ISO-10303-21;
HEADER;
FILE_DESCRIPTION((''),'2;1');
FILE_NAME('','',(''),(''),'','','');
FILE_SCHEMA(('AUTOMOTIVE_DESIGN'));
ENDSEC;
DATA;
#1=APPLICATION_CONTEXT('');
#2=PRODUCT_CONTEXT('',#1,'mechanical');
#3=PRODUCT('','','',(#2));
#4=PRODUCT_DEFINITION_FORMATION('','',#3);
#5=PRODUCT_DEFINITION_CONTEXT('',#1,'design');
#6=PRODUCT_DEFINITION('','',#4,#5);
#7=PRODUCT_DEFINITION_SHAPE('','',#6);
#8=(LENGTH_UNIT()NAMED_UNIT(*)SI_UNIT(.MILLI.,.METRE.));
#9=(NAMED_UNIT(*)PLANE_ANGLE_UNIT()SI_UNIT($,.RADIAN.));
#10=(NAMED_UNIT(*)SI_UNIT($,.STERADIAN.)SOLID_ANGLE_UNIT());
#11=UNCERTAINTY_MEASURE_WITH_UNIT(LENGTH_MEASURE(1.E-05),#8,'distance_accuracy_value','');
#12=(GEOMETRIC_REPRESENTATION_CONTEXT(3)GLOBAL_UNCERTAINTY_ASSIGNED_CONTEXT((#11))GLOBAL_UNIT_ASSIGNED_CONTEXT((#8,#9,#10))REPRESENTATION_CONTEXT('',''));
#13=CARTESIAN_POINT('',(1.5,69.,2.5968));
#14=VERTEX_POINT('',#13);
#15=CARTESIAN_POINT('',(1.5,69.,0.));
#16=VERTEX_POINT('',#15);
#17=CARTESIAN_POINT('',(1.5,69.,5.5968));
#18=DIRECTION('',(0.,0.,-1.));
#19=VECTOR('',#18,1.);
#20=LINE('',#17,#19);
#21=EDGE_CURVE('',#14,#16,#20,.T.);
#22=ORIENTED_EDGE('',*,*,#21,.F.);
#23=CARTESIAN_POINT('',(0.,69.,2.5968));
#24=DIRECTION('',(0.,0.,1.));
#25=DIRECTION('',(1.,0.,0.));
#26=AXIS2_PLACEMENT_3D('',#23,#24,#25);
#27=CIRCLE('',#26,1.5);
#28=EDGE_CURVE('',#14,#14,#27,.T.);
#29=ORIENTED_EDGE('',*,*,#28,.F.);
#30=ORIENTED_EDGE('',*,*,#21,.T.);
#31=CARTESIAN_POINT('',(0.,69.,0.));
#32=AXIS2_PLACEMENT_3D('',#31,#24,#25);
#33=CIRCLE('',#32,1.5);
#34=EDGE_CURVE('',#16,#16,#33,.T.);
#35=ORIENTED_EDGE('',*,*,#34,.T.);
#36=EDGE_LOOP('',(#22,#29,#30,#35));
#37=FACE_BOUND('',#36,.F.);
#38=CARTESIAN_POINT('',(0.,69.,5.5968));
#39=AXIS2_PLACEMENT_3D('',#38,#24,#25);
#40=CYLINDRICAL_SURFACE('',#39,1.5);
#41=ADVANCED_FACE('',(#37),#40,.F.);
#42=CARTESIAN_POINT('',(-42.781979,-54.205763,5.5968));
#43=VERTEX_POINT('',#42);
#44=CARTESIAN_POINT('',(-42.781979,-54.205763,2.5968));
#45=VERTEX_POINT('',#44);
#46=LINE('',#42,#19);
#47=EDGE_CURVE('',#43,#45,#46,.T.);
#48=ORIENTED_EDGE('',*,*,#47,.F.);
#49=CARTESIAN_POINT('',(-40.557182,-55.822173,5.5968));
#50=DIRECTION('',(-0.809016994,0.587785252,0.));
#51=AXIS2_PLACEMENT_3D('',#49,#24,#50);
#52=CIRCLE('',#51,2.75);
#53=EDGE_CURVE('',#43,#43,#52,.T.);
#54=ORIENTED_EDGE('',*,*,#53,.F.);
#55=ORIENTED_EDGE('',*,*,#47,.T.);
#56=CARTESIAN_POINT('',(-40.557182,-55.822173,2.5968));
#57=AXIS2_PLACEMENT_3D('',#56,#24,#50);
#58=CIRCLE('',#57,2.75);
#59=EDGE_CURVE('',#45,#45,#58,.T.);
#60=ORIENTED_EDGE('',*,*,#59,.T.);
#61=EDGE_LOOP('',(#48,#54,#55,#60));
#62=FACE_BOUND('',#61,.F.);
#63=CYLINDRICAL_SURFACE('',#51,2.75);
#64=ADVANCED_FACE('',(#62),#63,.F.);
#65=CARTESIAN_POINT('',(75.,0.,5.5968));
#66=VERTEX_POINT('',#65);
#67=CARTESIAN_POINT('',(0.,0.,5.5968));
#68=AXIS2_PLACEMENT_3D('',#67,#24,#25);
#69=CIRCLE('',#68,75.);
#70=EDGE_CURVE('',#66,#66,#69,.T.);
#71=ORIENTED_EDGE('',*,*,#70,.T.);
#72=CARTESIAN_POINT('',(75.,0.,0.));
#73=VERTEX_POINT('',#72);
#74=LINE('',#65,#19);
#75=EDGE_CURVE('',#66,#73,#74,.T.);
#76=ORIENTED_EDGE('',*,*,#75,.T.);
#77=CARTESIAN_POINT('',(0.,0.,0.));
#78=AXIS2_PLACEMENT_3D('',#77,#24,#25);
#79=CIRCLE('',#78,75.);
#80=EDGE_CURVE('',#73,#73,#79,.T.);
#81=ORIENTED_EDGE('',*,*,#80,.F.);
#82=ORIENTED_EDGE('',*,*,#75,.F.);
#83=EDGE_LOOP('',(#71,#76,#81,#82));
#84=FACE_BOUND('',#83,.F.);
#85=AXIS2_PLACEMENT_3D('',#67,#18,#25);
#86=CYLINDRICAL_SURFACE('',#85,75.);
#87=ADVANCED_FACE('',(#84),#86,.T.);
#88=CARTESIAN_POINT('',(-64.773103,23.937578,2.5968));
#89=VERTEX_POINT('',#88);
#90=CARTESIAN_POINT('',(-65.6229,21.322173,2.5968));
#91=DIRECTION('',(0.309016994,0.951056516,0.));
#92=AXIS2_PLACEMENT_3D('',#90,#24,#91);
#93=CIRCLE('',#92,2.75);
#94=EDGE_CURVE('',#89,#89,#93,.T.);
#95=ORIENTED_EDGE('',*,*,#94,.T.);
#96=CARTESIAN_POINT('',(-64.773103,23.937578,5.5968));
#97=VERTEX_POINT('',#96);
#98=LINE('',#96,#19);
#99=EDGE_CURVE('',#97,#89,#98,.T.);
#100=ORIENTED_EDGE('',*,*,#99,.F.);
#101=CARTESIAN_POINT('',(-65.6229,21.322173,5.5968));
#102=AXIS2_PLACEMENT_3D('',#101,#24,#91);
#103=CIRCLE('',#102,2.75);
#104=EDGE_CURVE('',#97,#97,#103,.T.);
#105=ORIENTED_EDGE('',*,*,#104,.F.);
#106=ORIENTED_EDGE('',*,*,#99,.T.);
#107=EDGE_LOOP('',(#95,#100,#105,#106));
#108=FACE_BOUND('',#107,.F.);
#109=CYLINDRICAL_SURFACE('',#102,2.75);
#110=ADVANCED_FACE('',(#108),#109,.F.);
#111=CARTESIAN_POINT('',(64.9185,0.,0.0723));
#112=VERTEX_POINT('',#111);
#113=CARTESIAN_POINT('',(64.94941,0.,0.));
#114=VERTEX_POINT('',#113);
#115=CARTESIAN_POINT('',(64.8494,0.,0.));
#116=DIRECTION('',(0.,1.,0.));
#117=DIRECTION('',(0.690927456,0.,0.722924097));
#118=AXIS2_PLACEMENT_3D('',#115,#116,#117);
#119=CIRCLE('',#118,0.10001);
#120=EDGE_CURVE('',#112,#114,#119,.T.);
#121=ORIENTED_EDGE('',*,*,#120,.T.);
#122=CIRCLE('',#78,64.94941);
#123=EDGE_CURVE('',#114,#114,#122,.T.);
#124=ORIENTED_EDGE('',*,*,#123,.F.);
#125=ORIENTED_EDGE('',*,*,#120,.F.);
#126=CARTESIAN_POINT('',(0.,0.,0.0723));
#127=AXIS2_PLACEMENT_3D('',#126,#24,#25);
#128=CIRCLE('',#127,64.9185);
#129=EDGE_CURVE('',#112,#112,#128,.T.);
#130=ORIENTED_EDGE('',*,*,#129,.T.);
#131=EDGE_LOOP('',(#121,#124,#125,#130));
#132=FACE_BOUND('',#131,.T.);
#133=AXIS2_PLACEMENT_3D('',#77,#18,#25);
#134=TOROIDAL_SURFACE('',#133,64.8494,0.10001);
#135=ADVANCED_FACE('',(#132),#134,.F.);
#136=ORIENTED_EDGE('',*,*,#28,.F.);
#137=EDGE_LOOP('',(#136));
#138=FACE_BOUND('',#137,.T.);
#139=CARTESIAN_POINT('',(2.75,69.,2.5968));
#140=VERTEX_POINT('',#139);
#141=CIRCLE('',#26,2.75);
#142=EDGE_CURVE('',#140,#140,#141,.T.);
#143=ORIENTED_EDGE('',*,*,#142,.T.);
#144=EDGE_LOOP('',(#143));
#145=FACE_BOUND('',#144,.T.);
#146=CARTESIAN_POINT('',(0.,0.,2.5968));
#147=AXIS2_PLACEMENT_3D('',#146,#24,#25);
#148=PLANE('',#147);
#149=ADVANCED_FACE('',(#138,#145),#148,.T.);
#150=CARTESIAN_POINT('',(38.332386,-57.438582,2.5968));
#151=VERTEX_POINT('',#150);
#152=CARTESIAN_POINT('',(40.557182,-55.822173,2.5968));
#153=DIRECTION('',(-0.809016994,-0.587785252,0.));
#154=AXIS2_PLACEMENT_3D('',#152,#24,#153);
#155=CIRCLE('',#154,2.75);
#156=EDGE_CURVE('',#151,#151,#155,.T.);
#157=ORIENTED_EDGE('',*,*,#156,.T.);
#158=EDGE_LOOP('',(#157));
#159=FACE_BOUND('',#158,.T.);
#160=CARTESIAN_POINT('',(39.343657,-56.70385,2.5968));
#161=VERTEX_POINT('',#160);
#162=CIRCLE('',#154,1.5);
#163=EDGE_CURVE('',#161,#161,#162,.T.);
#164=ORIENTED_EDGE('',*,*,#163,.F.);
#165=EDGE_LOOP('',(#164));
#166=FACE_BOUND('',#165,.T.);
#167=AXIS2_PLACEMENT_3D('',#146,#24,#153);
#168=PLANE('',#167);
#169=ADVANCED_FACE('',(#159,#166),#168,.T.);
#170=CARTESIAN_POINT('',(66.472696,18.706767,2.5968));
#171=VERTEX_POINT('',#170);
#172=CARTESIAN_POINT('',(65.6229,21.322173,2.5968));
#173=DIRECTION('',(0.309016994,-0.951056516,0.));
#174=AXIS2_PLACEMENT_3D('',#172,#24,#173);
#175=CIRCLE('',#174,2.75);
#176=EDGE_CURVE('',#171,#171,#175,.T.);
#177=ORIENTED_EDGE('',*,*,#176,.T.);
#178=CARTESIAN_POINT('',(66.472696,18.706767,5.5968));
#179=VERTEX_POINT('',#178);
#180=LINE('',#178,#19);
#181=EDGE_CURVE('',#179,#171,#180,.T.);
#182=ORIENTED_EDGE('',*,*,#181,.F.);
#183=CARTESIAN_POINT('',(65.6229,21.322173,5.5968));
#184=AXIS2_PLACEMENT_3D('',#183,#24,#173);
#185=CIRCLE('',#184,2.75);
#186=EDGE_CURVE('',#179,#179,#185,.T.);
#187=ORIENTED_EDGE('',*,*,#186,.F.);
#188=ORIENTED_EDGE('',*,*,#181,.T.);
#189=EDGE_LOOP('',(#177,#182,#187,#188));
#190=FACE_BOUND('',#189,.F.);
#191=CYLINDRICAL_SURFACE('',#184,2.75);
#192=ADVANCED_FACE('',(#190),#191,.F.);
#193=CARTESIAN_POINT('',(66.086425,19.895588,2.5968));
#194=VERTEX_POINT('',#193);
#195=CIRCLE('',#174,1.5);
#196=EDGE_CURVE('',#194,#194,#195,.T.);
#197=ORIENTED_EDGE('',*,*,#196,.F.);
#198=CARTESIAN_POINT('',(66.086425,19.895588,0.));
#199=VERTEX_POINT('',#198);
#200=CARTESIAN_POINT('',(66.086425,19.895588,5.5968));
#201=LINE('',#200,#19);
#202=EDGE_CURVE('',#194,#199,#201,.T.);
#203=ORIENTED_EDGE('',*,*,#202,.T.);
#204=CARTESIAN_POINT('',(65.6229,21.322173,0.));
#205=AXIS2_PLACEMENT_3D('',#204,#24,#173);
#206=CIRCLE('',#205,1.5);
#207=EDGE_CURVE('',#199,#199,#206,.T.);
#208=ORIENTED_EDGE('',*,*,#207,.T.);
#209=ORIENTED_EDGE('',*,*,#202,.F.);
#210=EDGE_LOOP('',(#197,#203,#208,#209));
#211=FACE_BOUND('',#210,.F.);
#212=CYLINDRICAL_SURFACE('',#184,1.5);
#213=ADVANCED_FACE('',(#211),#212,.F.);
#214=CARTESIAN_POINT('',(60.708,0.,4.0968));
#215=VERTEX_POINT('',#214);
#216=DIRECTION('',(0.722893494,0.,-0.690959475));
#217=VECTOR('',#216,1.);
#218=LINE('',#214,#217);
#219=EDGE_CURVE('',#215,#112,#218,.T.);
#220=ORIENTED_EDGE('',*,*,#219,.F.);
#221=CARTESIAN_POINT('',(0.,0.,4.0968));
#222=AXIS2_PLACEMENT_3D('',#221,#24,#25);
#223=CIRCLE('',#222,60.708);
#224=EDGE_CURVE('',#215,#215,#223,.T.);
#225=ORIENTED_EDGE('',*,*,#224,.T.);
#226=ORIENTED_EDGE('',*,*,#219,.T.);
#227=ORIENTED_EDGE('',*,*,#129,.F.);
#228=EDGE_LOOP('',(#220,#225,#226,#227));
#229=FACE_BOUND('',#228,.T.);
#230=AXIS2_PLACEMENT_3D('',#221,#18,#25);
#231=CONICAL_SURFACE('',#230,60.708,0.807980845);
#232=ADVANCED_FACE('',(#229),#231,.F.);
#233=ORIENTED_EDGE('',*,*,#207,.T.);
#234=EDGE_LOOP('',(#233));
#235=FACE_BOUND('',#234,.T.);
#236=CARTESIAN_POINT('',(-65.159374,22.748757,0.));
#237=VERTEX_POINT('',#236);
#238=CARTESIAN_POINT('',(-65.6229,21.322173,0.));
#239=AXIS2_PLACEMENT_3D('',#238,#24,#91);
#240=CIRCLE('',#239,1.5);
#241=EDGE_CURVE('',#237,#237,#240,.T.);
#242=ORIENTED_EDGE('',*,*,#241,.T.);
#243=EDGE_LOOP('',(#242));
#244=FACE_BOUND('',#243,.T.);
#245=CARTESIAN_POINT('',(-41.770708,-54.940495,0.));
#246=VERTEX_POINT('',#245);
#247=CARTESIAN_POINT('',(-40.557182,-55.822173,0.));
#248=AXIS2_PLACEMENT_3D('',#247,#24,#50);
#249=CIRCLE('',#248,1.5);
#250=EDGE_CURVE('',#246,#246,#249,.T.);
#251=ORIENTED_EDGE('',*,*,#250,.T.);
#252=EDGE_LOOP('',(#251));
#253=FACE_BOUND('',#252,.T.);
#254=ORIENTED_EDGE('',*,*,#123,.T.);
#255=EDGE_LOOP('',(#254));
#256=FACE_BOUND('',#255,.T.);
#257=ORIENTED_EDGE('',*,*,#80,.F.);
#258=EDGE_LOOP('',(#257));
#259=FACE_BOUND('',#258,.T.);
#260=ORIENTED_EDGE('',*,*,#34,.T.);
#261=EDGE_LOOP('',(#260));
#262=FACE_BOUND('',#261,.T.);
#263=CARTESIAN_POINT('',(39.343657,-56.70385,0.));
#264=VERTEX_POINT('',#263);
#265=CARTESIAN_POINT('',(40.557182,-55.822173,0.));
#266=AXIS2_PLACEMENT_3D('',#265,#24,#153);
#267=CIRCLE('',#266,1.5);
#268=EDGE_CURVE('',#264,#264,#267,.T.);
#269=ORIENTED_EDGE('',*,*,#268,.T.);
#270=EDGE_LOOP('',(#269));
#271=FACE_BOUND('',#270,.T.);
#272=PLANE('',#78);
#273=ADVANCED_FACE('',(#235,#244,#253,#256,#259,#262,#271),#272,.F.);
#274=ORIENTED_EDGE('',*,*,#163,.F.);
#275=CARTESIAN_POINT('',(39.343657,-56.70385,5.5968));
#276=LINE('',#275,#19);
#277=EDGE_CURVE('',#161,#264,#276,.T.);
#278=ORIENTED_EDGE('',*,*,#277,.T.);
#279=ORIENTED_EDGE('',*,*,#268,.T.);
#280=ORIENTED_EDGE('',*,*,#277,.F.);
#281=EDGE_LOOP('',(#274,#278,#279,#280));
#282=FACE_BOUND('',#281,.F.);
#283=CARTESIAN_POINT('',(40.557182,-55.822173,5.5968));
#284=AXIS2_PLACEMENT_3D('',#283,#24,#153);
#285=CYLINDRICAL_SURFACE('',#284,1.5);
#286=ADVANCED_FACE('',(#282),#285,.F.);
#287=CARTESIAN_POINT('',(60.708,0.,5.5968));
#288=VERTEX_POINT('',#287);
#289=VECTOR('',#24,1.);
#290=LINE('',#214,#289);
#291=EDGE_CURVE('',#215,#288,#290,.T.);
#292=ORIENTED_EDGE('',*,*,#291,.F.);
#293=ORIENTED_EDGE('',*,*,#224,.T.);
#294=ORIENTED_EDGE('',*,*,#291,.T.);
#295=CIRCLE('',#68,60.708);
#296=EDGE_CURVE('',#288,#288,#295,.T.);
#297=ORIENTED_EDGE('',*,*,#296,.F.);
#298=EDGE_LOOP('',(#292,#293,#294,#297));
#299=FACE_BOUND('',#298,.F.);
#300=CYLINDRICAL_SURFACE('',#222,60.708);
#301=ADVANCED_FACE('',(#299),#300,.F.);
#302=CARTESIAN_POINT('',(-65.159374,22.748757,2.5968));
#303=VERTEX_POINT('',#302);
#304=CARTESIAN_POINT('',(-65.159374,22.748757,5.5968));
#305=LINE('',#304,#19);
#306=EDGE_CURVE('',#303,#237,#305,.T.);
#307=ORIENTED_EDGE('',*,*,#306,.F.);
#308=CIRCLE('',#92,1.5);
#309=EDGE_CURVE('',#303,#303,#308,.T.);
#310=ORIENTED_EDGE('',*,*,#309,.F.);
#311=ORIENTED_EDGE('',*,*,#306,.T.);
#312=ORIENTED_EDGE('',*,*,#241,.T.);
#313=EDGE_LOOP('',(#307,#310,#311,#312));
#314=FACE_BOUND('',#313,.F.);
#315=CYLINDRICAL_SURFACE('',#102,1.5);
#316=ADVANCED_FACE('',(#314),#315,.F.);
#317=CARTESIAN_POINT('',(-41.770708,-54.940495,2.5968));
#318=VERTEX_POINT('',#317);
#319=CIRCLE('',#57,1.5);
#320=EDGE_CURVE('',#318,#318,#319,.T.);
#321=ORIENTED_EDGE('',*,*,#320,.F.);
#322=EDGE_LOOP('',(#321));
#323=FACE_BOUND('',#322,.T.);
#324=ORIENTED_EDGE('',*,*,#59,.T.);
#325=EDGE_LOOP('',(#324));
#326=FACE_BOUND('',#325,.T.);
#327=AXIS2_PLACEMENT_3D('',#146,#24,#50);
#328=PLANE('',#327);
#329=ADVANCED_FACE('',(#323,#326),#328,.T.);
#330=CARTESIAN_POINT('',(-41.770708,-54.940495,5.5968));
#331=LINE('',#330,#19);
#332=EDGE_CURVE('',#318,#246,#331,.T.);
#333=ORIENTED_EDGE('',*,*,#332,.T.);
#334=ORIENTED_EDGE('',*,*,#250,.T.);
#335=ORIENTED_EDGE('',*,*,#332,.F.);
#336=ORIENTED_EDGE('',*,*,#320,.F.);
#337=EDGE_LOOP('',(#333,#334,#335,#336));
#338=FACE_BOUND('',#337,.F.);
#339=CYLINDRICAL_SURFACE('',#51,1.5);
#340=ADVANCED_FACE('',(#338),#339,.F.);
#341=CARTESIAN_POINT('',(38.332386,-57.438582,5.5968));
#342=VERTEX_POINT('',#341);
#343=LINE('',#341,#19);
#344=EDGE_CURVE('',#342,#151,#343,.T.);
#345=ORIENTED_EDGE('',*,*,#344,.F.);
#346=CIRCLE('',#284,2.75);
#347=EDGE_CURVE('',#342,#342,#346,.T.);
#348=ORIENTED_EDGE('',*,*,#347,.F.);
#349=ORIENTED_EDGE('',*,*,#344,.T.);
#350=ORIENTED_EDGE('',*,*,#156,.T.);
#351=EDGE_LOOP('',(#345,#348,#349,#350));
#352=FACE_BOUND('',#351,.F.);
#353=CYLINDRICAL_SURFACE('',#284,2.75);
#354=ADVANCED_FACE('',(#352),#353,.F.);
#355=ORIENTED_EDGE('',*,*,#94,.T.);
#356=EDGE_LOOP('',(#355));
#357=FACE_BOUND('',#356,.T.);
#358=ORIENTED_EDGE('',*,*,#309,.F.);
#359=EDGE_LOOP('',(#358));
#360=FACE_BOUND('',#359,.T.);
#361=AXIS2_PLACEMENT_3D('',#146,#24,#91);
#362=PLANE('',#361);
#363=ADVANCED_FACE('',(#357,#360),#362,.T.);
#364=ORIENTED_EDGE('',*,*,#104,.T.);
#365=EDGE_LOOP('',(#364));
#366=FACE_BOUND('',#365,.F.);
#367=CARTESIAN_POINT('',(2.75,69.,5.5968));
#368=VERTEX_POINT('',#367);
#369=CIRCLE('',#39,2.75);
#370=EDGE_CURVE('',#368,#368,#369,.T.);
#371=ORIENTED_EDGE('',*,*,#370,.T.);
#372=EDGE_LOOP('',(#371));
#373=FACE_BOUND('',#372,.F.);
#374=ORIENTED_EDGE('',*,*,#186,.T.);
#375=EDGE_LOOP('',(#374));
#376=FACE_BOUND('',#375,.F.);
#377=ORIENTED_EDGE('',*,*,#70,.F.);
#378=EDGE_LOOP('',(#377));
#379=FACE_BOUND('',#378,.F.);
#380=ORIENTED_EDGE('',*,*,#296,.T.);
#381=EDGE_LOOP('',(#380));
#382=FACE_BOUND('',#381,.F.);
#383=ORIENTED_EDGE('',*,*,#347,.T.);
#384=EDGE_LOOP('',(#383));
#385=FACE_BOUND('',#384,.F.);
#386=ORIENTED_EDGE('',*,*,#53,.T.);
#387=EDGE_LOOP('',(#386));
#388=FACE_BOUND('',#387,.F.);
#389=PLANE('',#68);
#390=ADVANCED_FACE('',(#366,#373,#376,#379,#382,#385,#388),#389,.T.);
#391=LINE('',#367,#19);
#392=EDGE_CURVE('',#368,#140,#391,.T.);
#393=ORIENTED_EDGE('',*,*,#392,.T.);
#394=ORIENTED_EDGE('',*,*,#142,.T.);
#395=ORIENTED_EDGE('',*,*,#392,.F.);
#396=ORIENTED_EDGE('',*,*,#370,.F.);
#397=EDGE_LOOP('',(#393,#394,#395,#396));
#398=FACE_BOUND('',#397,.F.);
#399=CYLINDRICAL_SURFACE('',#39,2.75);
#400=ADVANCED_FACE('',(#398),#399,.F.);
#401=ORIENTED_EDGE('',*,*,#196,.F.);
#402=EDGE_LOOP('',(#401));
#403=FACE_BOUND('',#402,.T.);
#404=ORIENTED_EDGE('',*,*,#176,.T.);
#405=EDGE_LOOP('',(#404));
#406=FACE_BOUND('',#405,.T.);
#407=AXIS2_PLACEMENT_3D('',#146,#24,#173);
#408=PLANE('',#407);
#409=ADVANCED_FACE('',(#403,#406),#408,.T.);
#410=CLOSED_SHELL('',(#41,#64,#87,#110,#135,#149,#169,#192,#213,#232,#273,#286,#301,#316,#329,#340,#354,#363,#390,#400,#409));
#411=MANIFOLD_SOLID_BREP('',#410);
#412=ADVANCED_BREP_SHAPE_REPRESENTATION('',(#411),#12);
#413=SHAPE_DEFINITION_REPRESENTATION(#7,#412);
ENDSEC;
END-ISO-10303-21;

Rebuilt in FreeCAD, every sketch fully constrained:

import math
import FreeCAD as App
import Part
import Sketcher
from FreeCAD import Vector
Q = App.Units.Quantity

doc = App.newDocument("Part")
body = doc.addObject("PartDesign::Body", "Body")

sketch1 = doc.addObject("Sketcher::SketchObject", "Sketch")
body.addObject(sketch1)
sketch1.AttachmentSupport = (doc.XZ_Plane, [""])
sketch1.MapMode = "FlatFace"
sketch1.addGeometry([
    Part.LineSegment(Vector(75, 0, 0), Vector(64.95, 0, 0)),
    Part.ArcOfCircle(Part.Circle(Vector(64.85, 0, 0), Vector(0, 0, 1), 0.1), math.radians(0), math.radians(46)),
    Part.LineSegment(Vector(64.92, 0.07, 0), Vector(60.71, 4.1, 0)),
    Part.LineSegment(Vector(60.71, 4.1, 0), Vector(60.71, 5.6, 0)),
    Part.LineSegment(Vector(60.71, 5.6, 0), Vector(75, 5.6, 0)),
    Part.LineSegment(Vector(75, 5.6, 0), Vector(75, 0, 0)),
], False)
sketch1.addConstraint([
    Sketcher.Constraint("Coincident", 0, 2, 1, 1),
    Sketcher.Constraint("Tangent", 1, 2, 2, 1),
    Sketcher.Constraint("Coincident", 2, 2, 3, 1),
    Sketcher.Constraint("Coincident", 3, 2, 4, 1),
    Sketcher.Constraint("Coincident", 4, 2, 5, 1),
    Sketcher.Constraint("Coincident", 5, 2, 0, 1),
    Sketcher.Constraint("Horizontal", 0),
    Sketcher.Constraint("Vertical", 3),
    Sketcher.Constraint("Horizontal", 4),
    Sketcher.Constraint("Vertical", 5),
    Sketcher.Constraint("PointOnObject", 1, 3, -1),
    Sketcher.Constraint("PointOnObject", 0, 2, -1),
    Sketcher.Constraint("Radius", 1, Q("0.1 mm")),
    Sketcher.Constraint("DistanceY", 3, 1, 3, 2, Q("1.5 mm")),
    Sketcher.Constraint("DistanceX", -1, 1, 4, 2, Q("75 mm")),
    Sketcher.Constraint("DistanceX", 4, 1, 4, 2, Q("14.292 mm")),
    Sketcher.Constraint("DistanceX", 0, 2, 0, 1, Q("10.0506 mm")),
    Sketcher.Constraint("DistanceY", 5, 2, 5, 1, Q("5.5968 mm")),
])
revolution = doc.addObject("PartDesign::Revolution", "Revolution")
body.addObject(revolution)
revolution.Profile = sketch1
revolution.ReferenceAxis = (sketch1, ["V_Axis"])
revolution.Angle = 360

sketch2 = doc.addObject("Sketcher::SketchObject", "Sketch001")
body.addObject(sketch2)
sketch2.AttachmentSupport = (doc.XY_Plane, [""])
sketch2.MapMode = "FlatFace"
sketch2.AttachmentOffset = App.Placement(Vector(0, 0, 5.5968), App.Rotation())
sketch2.addGeometry(Part.Circle(Vector(0, 69, 0), Vector(0, 0, 1), 1.5), False)
sketch2.addConstraint([
    Sketcher.Constraint("PointOnObject", 0, 3, -2),
    Sketcher.Constraint("Diameter", 0, Q("3 mm")),
    Sketcher.Constraint("DistanceY", -1, 1, 0, 3, Q("69 mm")),
])
pocket1 = doc.addObject("PartDesign::Pocket", "Pocket")
body.addObject(pocket1)
pocket1.Profile = sketch2
pocket1.Length = 5.5968

sketch3 = doc.addObject("Sketcher::SketchObject", "Sketch002")
body.addObject(sketch3)
sketch3.AttachmentSupport = (doc.XY_Plane, [""])
sketch3.MapMode = "FlatFace"
sketch3.AttachmentOffset = App.Placement(Vector(0, 0, 5.5968), App.Rotation())
sketch3.addGeometry(Part.Circle(Vector(0, 69, 0), Vector(0, 0, 1), 2.8), False)
sketch3.addConstraint([
    Sketcher.Constraint("PointOnObject", 0, 3, -2),
    Sketcher.Constraint("Diameter", 0, Q("5.5 mm")),
    Sketcher.Constraint("DistanceY", -1, 1, 0, 3, Q("69 mm")),
])
pocket2 = doc.addObject("PartDesign::Pocket", "Pocket001")
body.addObject(pocket2)
pocket2.Profile = sketch3
pocket2.Length = 3
doc.recompute()

polarpattern = doc.addObject("PartDesign::PolarPattern", "PolarPattern")
body.addObject(polarpattern)
polarpattern.Originals = [pocket1, pocket2]
polarpattern.Axis = (doc.Z_Axis, [""])
polarpattern.Angle = 360
polarpattern.Occurrences = 5
body.Tip = polarpattern

doc.recompute()
